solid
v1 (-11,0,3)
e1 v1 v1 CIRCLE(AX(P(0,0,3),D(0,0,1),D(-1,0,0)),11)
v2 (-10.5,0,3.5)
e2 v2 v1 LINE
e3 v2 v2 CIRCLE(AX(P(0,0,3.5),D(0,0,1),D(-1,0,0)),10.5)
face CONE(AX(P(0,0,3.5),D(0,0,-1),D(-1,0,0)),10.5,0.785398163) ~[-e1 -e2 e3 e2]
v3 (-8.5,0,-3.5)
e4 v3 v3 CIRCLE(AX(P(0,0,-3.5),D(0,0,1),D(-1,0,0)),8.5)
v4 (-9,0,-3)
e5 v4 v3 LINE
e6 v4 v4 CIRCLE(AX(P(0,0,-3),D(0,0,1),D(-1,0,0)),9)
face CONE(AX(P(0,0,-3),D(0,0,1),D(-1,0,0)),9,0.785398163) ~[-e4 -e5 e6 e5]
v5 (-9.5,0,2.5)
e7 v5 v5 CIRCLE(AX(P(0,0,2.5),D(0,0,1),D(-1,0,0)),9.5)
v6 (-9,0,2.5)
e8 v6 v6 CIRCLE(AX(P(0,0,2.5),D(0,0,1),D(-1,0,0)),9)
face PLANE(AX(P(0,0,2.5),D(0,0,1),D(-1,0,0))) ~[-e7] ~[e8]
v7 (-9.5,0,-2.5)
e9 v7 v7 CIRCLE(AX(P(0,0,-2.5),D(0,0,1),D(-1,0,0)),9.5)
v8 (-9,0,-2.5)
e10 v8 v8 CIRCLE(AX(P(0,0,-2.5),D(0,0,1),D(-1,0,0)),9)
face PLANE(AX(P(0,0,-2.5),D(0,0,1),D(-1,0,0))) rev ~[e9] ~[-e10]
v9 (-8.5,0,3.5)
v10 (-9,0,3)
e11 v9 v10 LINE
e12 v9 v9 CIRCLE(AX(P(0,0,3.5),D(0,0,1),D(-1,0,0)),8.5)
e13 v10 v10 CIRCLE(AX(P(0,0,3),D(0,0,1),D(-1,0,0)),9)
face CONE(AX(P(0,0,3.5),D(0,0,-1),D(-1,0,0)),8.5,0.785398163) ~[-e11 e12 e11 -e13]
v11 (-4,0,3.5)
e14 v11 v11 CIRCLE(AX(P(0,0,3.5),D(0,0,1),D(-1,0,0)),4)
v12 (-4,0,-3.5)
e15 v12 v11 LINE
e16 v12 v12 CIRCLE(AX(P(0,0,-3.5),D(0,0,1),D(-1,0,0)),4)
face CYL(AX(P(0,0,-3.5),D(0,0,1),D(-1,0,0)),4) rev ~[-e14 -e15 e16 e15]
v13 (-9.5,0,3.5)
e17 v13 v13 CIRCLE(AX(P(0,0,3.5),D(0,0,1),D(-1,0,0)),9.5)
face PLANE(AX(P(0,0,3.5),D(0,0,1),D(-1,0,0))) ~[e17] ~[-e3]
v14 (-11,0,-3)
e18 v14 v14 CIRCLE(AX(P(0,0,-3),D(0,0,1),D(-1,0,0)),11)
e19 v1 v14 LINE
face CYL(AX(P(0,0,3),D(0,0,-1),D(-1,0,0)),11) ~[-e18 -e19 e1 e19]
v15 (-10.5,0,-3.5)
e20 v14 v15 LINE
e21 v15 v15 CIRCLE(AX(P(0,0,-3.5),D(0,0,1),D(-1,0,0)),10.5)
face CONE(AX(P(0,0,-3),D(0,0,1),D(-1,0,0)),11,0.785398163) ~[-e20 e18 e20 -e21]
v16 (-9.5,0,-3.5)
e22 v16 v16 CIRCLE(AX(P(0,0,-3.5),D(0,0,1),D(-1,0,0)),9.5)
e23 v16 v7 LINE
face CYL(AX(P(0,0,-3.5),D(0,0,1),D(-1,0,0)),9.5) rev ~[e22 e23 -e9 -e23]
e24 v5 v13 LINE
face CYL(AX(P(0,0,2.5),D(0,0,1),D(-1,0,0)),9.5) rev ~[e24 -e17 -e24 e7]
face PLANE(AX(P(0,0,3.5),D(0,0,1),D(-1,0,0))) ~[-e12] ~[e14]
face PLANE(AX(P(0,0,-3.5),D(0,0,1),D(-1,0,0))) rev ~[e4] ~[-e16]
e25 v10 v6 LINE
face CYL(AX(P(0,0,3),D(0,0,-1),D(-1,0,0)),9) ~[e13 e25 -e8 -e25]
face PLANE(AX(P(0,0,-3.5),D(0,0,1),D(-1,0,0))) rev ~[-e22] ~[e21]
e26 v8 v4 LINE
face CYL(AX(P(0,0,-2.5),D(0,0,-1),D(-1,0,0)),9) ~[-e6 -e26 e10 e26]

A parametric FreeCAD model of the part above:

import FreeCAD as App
import Part
import Sketcher
from FreeCAD import Vector
Q = App.Units.Quantity


def add_polygon(sketch, points):
    """Adds a closed chain of lines whose ends are joined by coincident constraints."""
    first, n = sketch.GeometryCount, len(points)
    for a, b in zip(points, points[1:] + points[:1]):
        sketch.addGeometry(Part.LineSegment(App.Vector(*a, 0), App.Vector(*b, 0)), False)
    for i in range(n):
        sketch.addConstraint(Sketcher.Constraint("Coincident", first + i, 2, first + (i + 1) % n, 1))

doc = App.newDocument("Part")
params = doc.addObject("Spreadsheet::Sheet", "Params")
for row, (alias, value) in enumerate([
    ("sketch1_width", "1 mm"),
    ("sketch1_height", "7 mm"),
    ("sketch1_height2", "6 mm"),
    ("sketch1_width2", "4.5 mm"),
    ("revolution_angle", "360 deg"),
], start=1):
    params.set(f"A{row}", alias)
    params.set(f"B{row}", "=" + value)
    params.setAlias(f"B{row}", alias)

body = doc.addObject("PartDesign::Body", "Body")

# Sketch on XZ plane
sketch1 = body.newObject("Sketcher::SketchObject", "Sketch")
sketch1.AttachmentSupport = (doc.getObject("XZ_Plane"), [""])
sketch1.MapMode = "FlatFace"
add_polygon(sketch1, [(-4, -3.5), (-4, 3.5), (-8.5, 3.5), (-9, 3), (-9, 2.5), (-9.5, 2.5), (-9.5, 3.5), (-10.5, 3.5), (-11, 3), (-11, -3), (-10.5, -3.5), (-9.5, -3.5), (-9.5, -2.5), (-9, -2.5), (-9, -3), (-8.5, -3.5)])  # lines 0-15
sketch1.addConstraint(Sketcher.Constraint("Vertical", 0))
sketch1.addConstraint(Sketcher.Constraint("Horizontal", 1))
sketch1.addConstraint(Sketcher.Constraint("Vertical", 3))
sketch1.addConstraint(Sketcher.Constraint("Horizontal", 4))
sketch1.addConstraint(Sketcher.Constraint("Vertical", 5))
sketch1.addConstraint(Sketcher.Constraint("Horizontal", 6))
sketch1.addConstraint(Sketcher.Constraint("Vertical", 8))
sketch1.addConstraint(Sketcher.Constraint("Horizontal", 10))
sketch1.addConstraint(Sketcher.Constraint("Vertical", 11))
sketch1.addConstraint(Sketcher.Constraint("Horizontal", 12))
sketch1.addConstraint(Sketcher.Constraint("Vertical", 13))
sketch1.addConstraint(Sketcher.Constraint("Horizontal", 15))
sketch1.addConstraint(Sketcher.Constraint("Symmetric", 6, 2, 9, 2, -1))
sketch1.addConstraint(Sketcher.Constraint("Symmetric", 4, 2, 11, 2, -1))
sketch1.addConstraint(Sketcher.Constraint("Symmetric", 2, 2, 13, 2, -1))
sketch1.addConstraint(Sketcher.Constraint("Symmetric", 1, 2, 14, 2, -1))
sketch1.addConstraint(Sketcher.Constraint("Parallel", 2, 7))
sketch1.addConstraint(Sketcher.Constraint("Perpendicular", 7, 9))
sketch1.addConstraint(Sketcher.Constraint("Parallel", 9, 14))
sketch1.addConstraint(Sketcher.Constraint("Horizontal", 1, 2, 5, 2))
sketch1.addConstraint(Sketcher.Constraint("Horizontal", 2, 2, 7, 2))
sketch1.addConstraint(Sketcher.Constraint("Equal", 12, 3))
sketch1.addConstraint(Sketcher.Constraint("Equal", 10, 5))
sketch1.addConstraint(Sketcher.Constraint("DistanceX", 6, 2, 6, 1, Q("1 mm")))
sketch1.addConstraint(Sketcher.Constraint("DistanceY", 0, 1, 0, 2, Q("7 mm")))
sketch1.addConstraint(Sketcher.Constraint("DistanceY", 8, 2, 8, 1, Q("6 mm")))
sketch1.addConstraint(Sketcher.Constraint("DistanceX", 1, 2, 1, 1, Q("4.5 mm")))
sketch1.addConstraint(Sketcher.Constraint("DistanceX", 0, 2, -1, 1, Q("4 mm")))
sketch1.setExpression("Constraints[39]", "Params.sketch1_width")
sketch1.setExpression("Constraints[40]", "Params.sketch1_height")
sketch1.setExpression("Constraints[41]", "Params.sketch1_height2")
sketch1.setExpression("Constraints[42]", "Params.sketch1_width2")
revolution = body.newObject("PartDesign::Revolution", "Revolution")
revolution.Profile = sketch1
revolution.ReferenceAxis = (sketch1, ["V_Axis"])
revolution.setExpression("Angle", "Params.revolution_angle")

doc.recompute()
